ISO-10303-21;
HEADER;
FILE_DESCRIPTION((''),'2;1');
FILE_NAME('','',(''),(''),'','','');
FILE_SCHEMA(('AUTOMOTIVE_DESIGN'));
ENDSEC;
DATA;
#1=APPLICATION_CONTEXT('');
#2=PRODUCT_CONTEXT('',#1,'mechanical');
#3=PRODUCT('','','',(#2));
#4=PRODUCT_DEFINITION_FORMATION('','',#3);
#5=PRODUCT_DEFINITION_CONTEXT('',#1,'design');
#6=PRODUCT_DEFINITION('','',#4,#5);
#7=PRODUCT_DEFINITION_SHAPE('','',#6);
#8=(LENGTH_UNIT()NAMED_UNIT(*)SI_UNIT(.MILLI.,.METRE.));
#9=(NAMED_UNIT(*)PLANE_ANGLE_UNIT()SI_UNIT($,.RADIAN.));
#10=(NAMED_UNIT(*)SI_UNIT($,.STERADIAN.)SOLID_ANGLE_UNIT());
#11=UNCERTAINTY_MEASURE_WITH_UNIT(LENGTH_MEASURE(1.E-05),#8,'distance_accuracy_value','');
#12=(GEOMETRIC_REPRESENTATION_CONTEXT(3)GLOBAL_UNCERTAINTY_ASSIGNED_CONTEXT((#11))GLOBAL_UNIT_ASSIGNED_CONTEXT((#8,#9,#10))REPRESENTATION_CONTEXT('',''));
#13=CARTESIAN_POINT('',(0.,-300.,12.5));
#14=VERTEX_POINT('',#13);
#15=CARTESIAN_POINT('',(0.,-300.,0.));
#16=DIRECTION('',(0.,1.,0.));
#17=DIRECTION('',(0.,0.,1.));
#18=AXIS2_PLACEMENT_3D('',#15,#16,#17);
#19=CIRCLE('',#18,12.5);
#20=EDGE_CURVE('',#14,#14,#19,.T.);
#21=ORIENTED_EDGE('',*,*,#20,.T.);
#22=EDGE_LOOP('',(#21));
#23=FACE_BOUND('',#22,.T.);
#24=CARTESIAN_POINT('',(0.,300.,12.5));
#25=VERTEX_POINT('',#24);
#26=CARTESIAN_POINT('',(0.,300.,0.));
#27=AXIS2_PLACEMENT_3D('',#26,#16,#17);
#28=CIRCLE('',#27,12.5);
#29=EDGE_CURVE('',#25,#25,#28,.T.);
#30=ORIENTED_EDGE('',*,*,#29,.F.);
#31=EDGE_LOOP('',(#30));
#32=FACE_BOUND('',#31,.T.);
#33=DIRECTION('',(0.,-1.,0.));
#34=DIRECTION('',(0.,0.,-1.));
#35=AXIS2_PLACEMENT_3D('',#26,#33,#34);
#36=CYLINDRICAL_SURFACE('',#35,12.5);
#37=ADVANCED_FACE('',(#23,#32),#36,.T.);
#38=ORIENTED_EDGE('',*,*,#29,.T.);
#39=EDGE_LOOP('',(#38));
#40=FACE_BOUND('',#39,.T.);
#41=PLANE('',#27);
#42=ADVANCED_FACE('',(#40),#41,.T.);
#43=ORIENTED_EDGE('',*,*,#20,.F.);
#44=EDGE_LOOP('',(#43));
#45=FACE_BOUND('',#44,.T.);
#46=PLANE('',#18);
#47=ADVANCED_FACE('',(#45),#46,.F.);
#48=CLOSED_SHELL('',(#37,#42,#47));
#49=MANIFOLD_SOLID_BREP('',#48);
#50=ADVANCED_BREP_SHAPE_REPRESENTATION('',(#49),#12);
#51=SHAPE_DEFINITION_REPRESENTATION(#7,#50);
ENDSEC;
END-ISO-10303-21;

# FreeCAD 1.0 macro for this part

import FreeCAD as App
import Part
import Sketcher
from FreeCAD import Vector

doc = App.newDocument("Part")
body = doc.addObject("PartDesign::Body", "Body")

sketch1 = doc.addObject("Sketcher::SketchObject", "Sketch")
body.addObject(sketch1)
sketch1.AttachmentSupport = (doc.XZ_Plane, [""])
sketch1.MapMode = "FlatFace"
sketch1.addGeometry(Part.Circle(Vector(0, 0, 0), Vector(0, 0, 1), 12.5), False)
sketch1.addConstraint(Sketcher.Constraint("Coincident", 0, 3, -1, 1))
sketch1.addConstraint(Sketcher.Constraint("Diameter", 0, 25.0))
pad1 = doc.addObject("PartDesign::Pad", "Pad")
body.addObject(pad1)
pad1.Profile = sketch1
pad1.Length = 600
pad1.Midplane = True

doc.recompute()
